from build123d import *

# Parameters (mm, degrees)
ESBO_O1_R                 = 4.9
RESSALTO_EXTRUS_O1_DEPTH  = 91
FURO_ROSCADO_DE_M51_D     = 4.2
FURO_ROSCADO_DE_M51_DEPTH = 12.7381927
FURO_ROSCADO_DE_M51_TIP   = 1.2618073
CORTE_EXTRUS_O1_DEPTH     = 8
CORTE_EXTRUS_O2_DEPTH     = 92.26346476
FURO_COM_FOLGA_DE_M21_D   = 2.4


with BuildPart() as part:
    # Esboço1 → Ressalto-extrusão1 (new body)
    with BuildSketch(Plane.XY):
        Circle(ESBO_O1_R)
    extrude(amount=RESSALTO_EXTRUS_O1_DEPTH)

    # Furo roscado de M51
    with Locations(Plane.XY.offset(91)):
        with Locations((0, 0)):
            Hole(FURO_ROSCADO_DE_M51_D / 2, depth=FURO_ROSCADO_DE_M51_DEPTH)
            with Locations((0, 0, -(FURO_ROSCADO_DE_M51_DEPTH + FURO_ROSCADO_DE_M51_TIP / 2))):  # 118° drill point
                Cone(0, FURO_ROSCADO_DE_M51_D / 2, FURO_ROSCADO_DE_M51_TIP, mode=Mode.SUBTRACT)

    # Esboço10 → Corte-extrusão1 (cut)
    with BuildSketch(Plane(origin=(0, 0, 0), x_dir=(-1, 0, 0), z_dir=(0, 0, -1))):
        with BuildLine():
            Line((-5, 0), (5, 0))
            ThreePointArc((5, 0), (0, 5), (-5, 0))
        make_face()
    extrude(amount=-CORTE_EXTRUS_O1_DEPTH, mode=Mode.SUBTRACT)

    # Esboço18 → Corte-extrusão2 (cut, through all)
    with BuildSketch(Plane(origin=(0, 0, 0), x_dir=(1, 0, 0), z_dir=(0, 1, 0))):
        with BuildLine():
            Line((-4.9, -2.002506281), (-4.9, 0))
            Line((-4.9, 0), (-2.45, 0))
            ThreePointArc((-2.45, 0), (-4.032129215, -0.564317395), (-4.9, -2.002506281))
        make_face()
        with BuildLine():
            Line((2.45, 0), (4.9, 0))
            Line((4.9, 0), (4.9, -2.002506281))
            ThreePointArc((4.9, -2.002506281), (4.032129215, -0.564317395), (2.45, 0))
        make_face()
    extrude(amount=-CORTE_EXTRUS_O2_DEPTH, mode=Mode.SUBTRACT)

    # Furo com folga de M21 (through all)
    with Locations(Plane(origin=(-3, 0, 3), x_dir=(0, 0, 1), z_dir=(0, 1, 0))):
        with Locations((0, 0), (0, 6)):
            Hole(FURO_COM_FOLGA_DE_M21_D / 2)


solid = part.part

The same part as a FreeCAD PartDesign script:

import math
import FreeCAD as App
import Part
import Sketcher

V = App.Vector
Q = App.Units.Quantity

doc = App.newDocument("Part")
body = doc.addObject("PartDesign::Body", "Body")

# Sketch on XY plane
sketch1 = body.newObject("Sketcher::SketchObject", "Sketch")
sketch1.AttachmentSupport = (doc.getObject("XY_Plane"), [""])
sketch1.MapMode = "FlatFace"
sketch1.addGeometry(Part.Circle(V(0, 0, 0), V(0, 0, 1), 4.9), False)
sketch1.addConstraint([
    Sketcher.Constraint("Coincident", 0, 3, -1, 1),
    Sketcher.Constraint("Diameter", 0, Q("9.8 mm")),
])
pad1 = body.newObject("PartDesign::Pad", "Pad")
pad1.Profile = sketch1
pad1.Length = 91

# Sketch on XY plane
sketch2 = body.newObject("Sketcher::SketchObject", "Sketch001")
sketch2.AttachmentSupport = (doc.getObject("XY_Plane"), [""])
sketch2.MapMode = "FlatFace"
sketch2.AttachmentOffset = App.Placement(V(0, 0, 91), App.Rotation())
sketch2.addGeometry(Part.Circle(V(0, 0, 0), V(0, 0, 1), 2.1), False)
sketch2.addConstraint([
    Sketcher.Constraint("Coincident", 0, 3, -1, 1),
    Sketcher.Constraint("Diameter", 0, Q("4.2 mm")),
])
doc.recompute()
hole = body.newObject("PartDesign::Hole", "Hole")
hole.Profile = sketch2
hole.ThreadType = "None"
hole.Diameter = 4.2
hole.DepthType = "Dimension"
hole.Depth = 12.738193
hole.DrillPoint = "Angled"
hole.DrillPointAngle = 118

# Sketch on XY plane
sketch3 = body.newObject("Sketcher::SketchObject", "Sketch002")
sketch3.AttachmentSupport = (doc.getObject("XY_Plane"), [""])
sketch3.MapMode = "FlatFace"
sketch3.addGeometry([
    Part.LineSegment(V(5, 0, 0), V(-5, 0, 0)),
    Part.ArcOfCircle(Part.Circle(V(0, 0, 0), V(0, 0, 1), 5), math.radians(0), math.radians(180)),
], False)
sketch3.addConstraint([
    Sketcher.Constraint("Coincident", 0, 1, 1, 1),
    Sketcher.Constraint("Coincident", 1, 2, 0, 2),
    Sketcher.Constraint("Horizontal", 0),
    Sketcher.Constraint("Coincident", 1, 3, -1, 1),
    Sketcher.Constraint("PointOnObject", 0, 1, -1),
    Sketcher.Constraint("Radius", 1, Q("5 mm")),
])
pocket1 = body.newObject("PartDesign::Pocket", "Pocket")
pocket1.Profile = sketch3
pocket1.Length = 8
pocket1.Reversed = True

# Sketch on XZ plane
sketch4 = body.newObject("Sketcher::SketchObject", "Sketch003")
sketch4.AttachmentSupport = (doc.getObject("XZ_Plane"), [""])
sketch4.MapMode = "FlatFace"
sketch4.addGeometry([
    Part.LineSegment(V(-4.9, 0, 0), V(-4.9, 2, 0)),  # 0
    Part.ArcOfCircle(Part.Circle(V(-2.5, 2.5, 0), V(0, 0, 1), 2.5), math.radians(-169), math.radians(-90)),  # 1
    Part.LineSegment(V(-2.5, 0, 0), V(-4.9, 0, 0)),  # 2
    Part.LineSegment(V(4.9, 0, 0), V(2.5, 0, 0)),  # 3
    Part.ArcOfCircle(Part.Circle(V(2.5, 2.5, 0), V(0, 0, 1), 2.5), math.radians(-90), math.radians(-11)),  # 4
    Part.LineSegment(V(4.9, 2, 0), V(4.9, 0, 0)),  # 5
], False)
sketch4.addConstraint([
    Sketcher.Constraint("Coincident", 0, 2, 1, 1),
    Sketcher.Constraint("Tangent", 1, 2, 2, 1),
    Sketcher.Constraint("Coincident", 2, 2, 0, 1),
    Sketcher.Constraint("Tangent", 3, 2, 4, 1),
    Sketcher.Constraint("Coincident", 4, 2, 5, 1),
    Sketcher.Constraint("Coincident", 5, 2, 3, 1),
    Sketcher.Constraint("Vertical", 0),
    Sketcher.Constraint("Horizontal", 2),
    Sketcher.Constraint("Horizontal", 3),
    Sketcher.Constraint("Vertical", 5),
    Sketcher.Constraint("Equal", 1, 4),
    Sketcher.Constraint("Symmetric", 1, 2, 3, 2, -1, 1),
    Sketcher.Constraint("Symmetric", 0, 2, 4, 2, -2),
    Sketcher.Constraint("Radius", 1, Q("2.5 mm")),
    Sketcher.Constraint("DistanceX", 2, 2, 2, 1, Q("2.45 mm")),
    Sketcher.Constraint("DistanceX", 0, 2, -1, 1, Q("4.9 mm")),
])
pocket2 = body.newObject("PartDesign::Pocket", "Pocket001")
pocket2.Profile = sketch4
pocket2.Type = "ThroughAll"
pocket2.Reversed = True

# Sketch on XZ plane
sketch5 = body.newObject("Sketcher::SketchObject", "Sketch004")
sketch5.AttachmentSupport = (doc.getObject("XZ_Plane"), [""])
sketch5.MapMode = "FlatFace"
sketch5.addGeometry([
    Part.Circle(V(-3, 3, 0), V(0, 0, 1), 1.2),
    Part.Circle(V(3, 3, 0), V(0, 0, 1), 1.2),
], False)
sketch5.addConstraint([
    Sketcher.Constraint("Equal", 0, 1),
    Sketcher.Constraint("Symmetric", 0, 3, 1, 3, -2),
    Sketcher.Constraint("Diameter", 0, Q("2.4 mm")),
    Sketcher.Constraint("DistanceX", 0, 3, -1, 1, Q("3 mm")),
    Sketcher.Constraint("DistanceY", -1, 1, 0, 3, Q("3 mm")),
])
doc.recompute()
hole2 = body.newObject("PartDesign::Hole", "Hole001")
hole2.Profile = sketch5
hole2.ThreadType = "None"
hole2.Diameter = 2.4
hole2.DepthType = "ThroughAll"
hole2.Reversed = True

doc.recompute()
